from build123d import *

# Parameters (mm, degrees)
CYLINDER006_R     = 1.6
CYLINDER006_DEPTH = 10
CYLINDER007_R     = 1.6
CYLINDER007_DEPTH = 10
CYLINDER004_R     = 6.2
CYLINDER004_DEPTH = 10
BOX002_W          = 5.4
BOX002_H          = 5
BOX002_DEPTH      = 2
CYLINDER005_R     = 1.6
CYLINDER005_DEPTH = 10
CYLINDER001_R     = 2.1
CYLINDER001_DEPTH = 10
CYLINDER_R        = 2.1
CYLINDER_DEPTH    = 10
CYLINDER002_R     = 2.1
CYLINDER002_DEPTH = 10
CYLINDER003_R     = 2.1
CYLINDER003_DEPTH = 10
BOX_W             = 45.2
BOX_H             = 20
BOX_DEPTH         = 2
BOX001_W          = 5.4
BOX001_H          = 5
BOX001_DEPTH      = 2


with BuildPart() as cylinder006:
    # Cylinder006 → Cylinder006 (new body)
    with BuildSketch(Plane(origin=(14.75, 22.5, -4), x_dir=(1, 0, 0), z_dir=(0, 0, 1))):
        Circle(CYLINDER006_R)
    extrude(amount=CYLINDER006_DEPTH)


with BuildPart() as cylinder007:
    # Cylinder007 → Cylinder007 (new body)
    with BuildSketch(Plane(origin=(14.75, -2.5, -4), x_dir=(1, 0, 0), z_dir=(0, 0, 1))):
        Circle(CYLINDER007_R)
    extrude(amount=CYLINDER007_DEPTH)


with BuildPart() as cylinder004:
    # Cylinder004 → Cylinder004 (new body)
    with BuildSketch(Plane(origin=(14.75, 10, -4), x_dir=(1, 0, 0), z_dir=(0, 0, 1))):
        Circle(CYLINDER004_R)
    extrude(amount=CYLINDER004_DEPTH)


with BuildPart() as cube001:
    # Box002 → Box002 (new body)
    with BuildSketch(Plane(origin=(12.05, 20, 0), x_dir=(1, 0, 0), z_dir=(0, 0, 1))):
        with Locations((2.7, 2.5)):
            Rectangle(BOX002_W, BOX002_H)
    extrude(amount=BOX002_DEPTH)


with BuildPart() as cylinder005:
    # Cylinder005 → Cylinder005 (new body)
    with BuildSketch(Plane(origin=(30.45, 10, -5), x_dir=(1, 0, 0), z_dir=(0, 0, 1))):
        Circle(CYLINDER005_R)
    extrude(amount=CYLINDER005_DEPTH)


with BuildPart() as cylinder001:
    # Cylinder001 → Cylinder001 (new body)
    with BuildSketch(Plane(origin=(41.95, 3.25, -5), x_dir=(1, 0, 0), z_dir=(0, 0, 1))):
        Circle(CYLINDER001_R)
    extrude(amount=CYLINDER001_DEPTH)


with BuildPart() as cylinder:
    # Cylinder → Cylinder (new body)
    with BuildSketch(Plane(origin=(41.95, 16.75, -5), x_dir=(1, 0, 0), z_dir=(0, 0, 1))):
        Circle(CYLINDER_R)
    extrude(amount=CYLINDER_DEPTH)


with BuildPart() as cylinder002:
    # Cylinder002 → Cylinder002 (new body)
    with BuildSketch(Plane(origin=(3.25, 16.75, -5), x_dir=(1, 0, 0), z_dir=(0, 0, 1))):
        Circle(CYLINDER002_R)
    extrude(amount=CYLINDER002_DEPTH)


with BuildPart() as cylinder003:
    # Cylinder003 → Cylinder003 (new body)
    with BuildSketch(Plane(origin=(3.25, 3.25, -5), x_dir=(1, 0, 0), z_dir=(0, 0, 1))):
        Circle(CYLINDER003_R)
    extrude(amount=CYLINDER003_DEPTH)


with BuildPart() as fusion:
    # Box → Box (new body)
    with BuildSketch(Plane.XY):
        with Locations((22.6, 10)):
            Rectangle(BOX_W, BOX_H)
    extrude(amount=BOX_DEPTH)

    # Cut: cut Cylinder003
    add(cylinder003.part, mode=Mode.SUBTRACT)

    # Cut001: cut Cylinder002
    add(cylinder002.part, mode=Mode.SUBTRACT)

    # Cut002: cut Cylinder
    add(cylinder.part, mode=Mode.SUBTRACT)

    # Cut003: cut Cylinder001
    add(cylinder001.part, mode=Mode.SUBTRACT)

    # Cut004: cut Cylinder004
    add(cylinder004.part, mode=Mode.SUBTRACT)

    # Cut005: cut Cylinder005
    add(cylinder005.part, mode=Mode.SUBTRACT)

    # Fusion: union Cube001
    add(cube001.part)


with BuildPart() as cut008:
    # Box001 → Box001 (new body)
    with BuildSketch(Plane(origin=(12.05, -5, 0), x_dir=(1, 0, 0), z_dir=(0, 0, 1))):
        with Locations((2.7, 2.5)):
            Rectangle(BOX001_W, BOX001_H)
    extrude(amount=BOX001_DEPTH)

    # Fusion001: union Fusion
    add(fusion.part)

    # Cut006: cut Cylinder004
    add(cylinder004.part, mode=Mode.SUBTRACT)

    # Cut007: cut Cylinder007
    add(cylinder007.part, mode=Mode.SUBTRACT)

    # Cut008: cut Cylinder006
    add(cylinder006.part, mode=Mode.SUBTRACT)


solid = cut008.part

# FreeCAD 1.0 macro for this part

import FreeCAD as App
import Part
import Sketcher
from FreeCAD import Vector


def add_polygon(sketch, points):
    """Adds a closed chain of lines whose ends are joined by coincident constraints."""
    first, n = sketch.GeometryCount, len(points)
    for a, b in zip(points, points[1:] + points[:1]):
        sketch.addGeometry(Part.LineSegment(App.Vector(*a, 0), App.Vector(*b, 0)), False)
    for i in range(n):
        sketch.addConstraint(Sketcher.Constraint("Coincident", first + i, 2, first + (i + 1) % n, 1))

doc = App.newDocument("Part")
params = doc.addObject("Spreadsheet::Sheet", "Params")
for row, (alias, value) in enumerate([
    ("sketch1_diameter", "3.2 mm"),
    ("pad1_length", "10 mm"),
    ("sketch2_diameter", "3.2 mm"),
    ("pad2_length", "10 mm"),
    ("sketch3_diameter", "12.4 mm"),
    ("pad3_length", "10 mm"),
    ("sketch4_height", "5 mm"),
    ("sketch4_width", "5.4 mm"),
    ("pad4_length", "2 mm"),
    ("sketch5_diameter", "3.2 mm"),
    ("pad5_length", "10 mm"),
    ("sketch6_diameter", "4.2 mm"),
    ("pad6_length", "10 mm"),
    ("sketch7_diameter", "4.2 mm"),
    ("pad7_length", "10 mm"),
    ("sketch8_diameter", "4.2 mm"),
    ("pad8_length", "10 mm"),
    ("sketch9_diameter", "4.2 mm"),
    ("pad9_length", "10 mm"),
    ("sketch10_height", "20 mm"),
    ("sketch10_width", "45.2 mm"),
    ("pad10_length", "2 mm"),
    ("sketch11_height", "5 mm"),
    ("sketch11_width", "5.4 mm"),
    ("pad11_length", "2 mm"),
], start=1):
    params.set(f"A{row}", alias)
    params.set(f"B{row}", "=" + value)
    params.setAlias(f"B{row}", alias)

body = doc.addObject("PartDesign::Body", "Body")

# Sketch on XY plane
sketch1 = body.newObject("Sketcher::SketchObject", "Sketch")
sketch1.AttachmentSupport = (doc.getObject("XY_Plane"), [""])
sketch1.MapMode = "FlatFace"
sketch1.AttachmentOffset = App.Placement(Vector(0, 0, -4), App.Rotation())
sketch1.addGeometry(Part.Circle(Vector(14.8, 22.5, 0), Vector(0, 0, 1), 1.6), False)
sketch1.addConstraint(Sketcher.Constraint("Diameter", 0, 3.2))
sketch1.addConstraint(Sketcher.Constraint("DistanceY", -1, 1, 0, 3, 22.5))
sketch1.addConstraint(Sketcher.Constraint("DistanceX", -1, 1, 0, 3, 14.75))
sketch1.setExpression("Constraints[0]", "Params.sketch1_diameter")
pad1 = body.newObject("PartDesign::Pad", "Pad")
pad1.Profile = sketch1
pad1.setExpression("Length", "Params.pad1_length")
body2 = doc.addObject("PartDesign::Body", "Body001")

# Sketch on XY plane
sketch2 = body2.newObject("Sketcher::SketchObject", "Sketch001")
sketch2.AttachmentSupport = (doc.getObject("XY_Plane001"), [""])
sketch2.MapMode = "FlatFace"
sketch2.AttachmentOffset = App.Placement(Vector(0, 0, -4), App.Rotation())
sketch2.addGeometry(Part.Circle(Vector(14.8, -2.5, 0), Vector(0, 0, 1), 1.6), False)
sketch2.addConstraint(Sketcher.Constraint("Diameter", 0, 3.2))
sketch2.addConstraint(Sketcher.Constraint("DistanceY", 0, 3, -1, 1, 2.5))
sketch2.addConstraint(Sketcher.Constraint("DistanceX", -1, 1, 0, 3, 14.75))
sketch2.setExpression("Constraints[0]", "Params.sketch2_diameter")
pad2 = body2.newObject("PartDesign::Pad", "Pad001")
pad2.Profile = sketch2
pad2.setExpression("Length", "Params.pad2_length")
body3 = doc.addObject("PartDesign::Body", "Body002")

# Sketch on XY plane
sketch3 = body3.newObject("Sketcher::SketchObject", "Sketch002")
sketch3.AttachmentSupport = (doc.getObject("XY_Plane002"), [""])
sketch3.MapMode = "FlatFace"
sketch3.AttachmentOffset = App.Placement(Vector(0, 0, -4), App.Rotation())
sketch3.addGeometry(Part.Circle(Vector(15, 10, 0), Vector(0, 0, 1), 6), False)
sketch3.addConstraint(Sketcher.Constraint("Diameter", 0, 12.4))
sketch3.addConstraint(Sketcher.Constraint("DistanceY", -1, 1, 0, 3, 10.0))
sketch3.addConstraint(Sketcher.Constraint("DistanceX", -1, 1, 0, 3, 14.75))
sketch3.setExpression("Constraints[0]", "Params.sketch3_diameter")
pad3 = body3.newObject("PartDesign::Pad", "Pad002")
pad3.Profile = sketch3
pad3.setExpression("Length", "Params.pad3_length")
body4 = doc.addObject("PartDesign::Body", "Body003")

# Sketch on XY plane
sketch4 = body4.newObject("Sketcher::SketchObject", "Sketch003")
sketch4.AttachmentSupport = (doc.getObject("XY_Plane003"), [""])
sketch4.MapMode = "FlatFace"
add_polygon(sketch4, [(12, 25), (12, 20), (17, 20), (17, 25)])  # lines 0-3
sketch4.addConstraint(Sketcher.Constraint("Vertical", 0))
sketch4.addConstraint(Sketcher.Constraint("Horizontal", 1))
sketch4.addConstraint(Sketcher.Constraint("Vertical", 2))
sketch4.addConstraint(Sketcher.Constraint("Horizontal", 3))
sketch4.addConstraint(Sketcher.Constraint("DistanceY", 0, 2, 0, 1, 5.0))
sketch4.addConstraint(Sketcher.Constraint("DistanceX", 1, 1, 1, 2, 5.4))
sketch4.addConstraint(Sketcher.Constraint("DistanceY", -1, 1, 0, 2, 20.0))
sketch4.addConstraint(Sketcher.Constraint("DistanceX", -1, 1, 0, 2, 12.05))
sketch4.setExpression("Constraints[8]", "Params.sketch4_height")
sketch4.setExpression("Constraints[9]", "Params.sketch4_width")
pad4 = body4.newObject("PartDesign::Pad", "Pad003")
pad4.Profile = sketch4
pad4.setExpression("Length", "Params.pad4_length")
body5 = doc.addObject("PartDesign::Body", "Body004")

# Sketch on XY plane
sketch5 = body5.newObject("Sketcher::SketchObject", "Sketch004")
sketch5.AttachmentSupport = (doc.getObject("XY_Plane004"), [""])
sketch5.MapMode = "FlatFace"
sketch5.AttachmentOffset = App.Placement(Vector(0, 0, -5), App.Rotation())
sketch5.addGeometry(Part.Circle(Vector(30.4, 10, 0), Vector(0, 0, 1), 1.6), False)
sketch5.addConstraint(Sketcher.Constraint("Diameter", 0, 3.2))
sketch5.addConstraint(Sketcher.Constraint("DistanceY", -1, 1, 0, 3, 10.0))
sketch5.addConstraint(Sketcher.Constraint("DistanceX", -1, 1, 0, 3, 30.45))
sketch5.setExpression("Constraints[0]", "Params.sketch5_diameter")
pad5 = body5.newObject("PartDesign::Pad", "Pad004")
pad5.Profile = sketch5
pad5.setExpression("Length", "Params.pad5_length")
body6 = doc.addObject("PartDesign::Body", "Body005")

# Sketch on XY plane
sketch6 = body6.newObject("Sketcher::SketchObject", "Sketch005")
sketch6.AttachmentSupport = (doc.getObject("XY_Plane005"), [""])
sketch6.MapMode = "FlatFace"
sketch6.AttachmentOffset = App.Placement(Vector(0, 0, -5), App.Rotation())
sketch6.addGeometry(Part.Circle(Vector(42, 3.2, 0), Vector(0, 0, 1), 2.1), False)
sketch6.addConstraint(Sketcher.Constraint("Diameter", 0, 4.2))
sketch6.addConstraint(Sketcher.Constraint("DistanceX", -1, 1, 0, 3, 41.95))
sketch6.addConstraint(Sketcher.Constraint("DistanceY", -1, 1, 0, 3, 3.25))
sketch6.setExpression("Constraints[0]", "Params.sketch6_diameter")
pad6 = body6.newObject("PartDesign::Pad", "Pad005")
pad6.Profile = sketch6
pad6.setExpression("Length", "Params.pad6_length")
body7 = doc.addObject("PartDesign::Body", "Body006")

# Sketch on XY plane
sketch7 = body7.newObject("Sketcher::SketchObject", "Sketch006")
sketch7.AttachmentSupport = (doc.getObject("XY_Plane006"), [""])
sketch7.MapMode = "FlatFace"
sketch7.AttachmentOffset = App.Placement(Vector(0, 0, -5), App.Rotation())
sketch7.addGeometry(Part.Circle(Vector(42, 16.8, 0), Vector(0, 0, 1), 2.1), False)
sketch7.addConstraint(Sketcher.Constraint("Diameter", 0, 4.2))
sketch7.addConstraint(Sketcher.Constraint("DistanceX", -1, 1, 0, 3, 41.95))
sketch7.addConstraint(Sketcher.Constraint("DistanceY", -1, 1, 0, 3, 16.75))
sketch7.setExpression("Constraints[0]", "Params.sketch7_diameter")
pad7 = body7.newObject("PartDesign::Pad", "Pad006")
pad7.Profile = sketch7
pad7.setExpression("Length", "Params.pad7_length")
body8 = doc.addObject("PartDesign::Body", "Body007")

# Sketch on XY plane
sketch8 = body8.newObject("Sketcher::SketchObject", "Sketch007")
sketch8.AttachmentSupport = (doc.getObject("XY_Plane007"), [""])
sketch8.MapMode = "FlatFace"
sketch8.AttachmentOffset = App.Placement(Vector(0, 0, -5), App.Rotation())
sketch8.addGeometry(Part.Circle(Vector(3.2, 16.8, 0), Vector(0, 0, 1), 2.1), False)
sketch8.addConstraint(Sketcher.Constraint("Diameter", 0, 4.2))
sketch8.addConstraint(Sketcher.Constraint("DistanceX", -1, 1, 0, 3, 3.25))
sketch8.addConstraint(Sketcher.Constraint("DistanceY", -1, 1, 0, 3, 16.75))
sketch8.setExpression("Constraints[0]", "Params.sketch8_diameter")
pad8 = body8.newObject("PartDesign::Pad", "Pad007")
pad8.Profile = sketch8
pad8.setExpression("Length", "Params.pad8_length")
body9 = doc.addObject("PartDesign::Body", "Body008")

# Sketch on XY plane
sketch9 = body9.newObject("Sketcher::SketchObject", "Sketch008")
sketch9.AttachmentSupport = (doc.getObject("XY_Plane008"), [""])
sketch9.MapMode = "FlatFace"
sketch9.AttachmentOffset = App.Placement(Vector(0, 0, -5), App.Rotation())
sketch9.addGeometry(Part.Circle(Vector(3.2, 3.2, 0), Vector(0, 0, 1), 2.1), False)
sketch9.addConstraint(Sketcher.Constraint("Diameter", 0, 4.2))
sketch9.addConstraint(Sketcher.Constraint("DistanceX", -1, 1, 0, 3, 3.25))
sketch9.addConstraint(Sketcher.Constraint("DistanceY", -1, 1, 0, 3, 3.25))
sketch9.setExpression("Constraints[0]", "Params.sketch9_diameter")
pad9 = body9.newObject("PartDesign::Pad", "Pad008")
pad9.Profile = sketch9
pad9.setExpression("Length", "Params.pad9_length")
body10 = doc.addObject("PartDesign::Body", "Body009")

# Sketch on XY plane
sketch10 = body10.newObject("Sketcher::SketchObject", "Sketch009")
sketch10.AttachmentSupport = (doc.getObject("XY_Plane009"), [""])
sketch10.MapMode = "FlatFace"
add_polygon(sketch10, [(0, 20), (0, 0), (45, 0), (45, 20)])  # lines 0-3
sketch10.addConstraint(Sketcher.Constraint("Vertical", 0))
sketch10.addConstraint(Sketcher.Constraint("Horizontal", 1))
sketch10.addConstraint(Sketcher.Constraint("Vertical", 2))
sketch10.addConstraint(Sketcher.Constraint("Horizontal", 3))
sketch10.addConstraint(Sketcher.Constraint("Coincident", 0, 2, -1, 1))
sketch10.addConstraint(Sketcher.Constraint("DistanceY", 0, 2, 0, 1, 20.0))
sketch10.addConstraint(Sketcher.Constraint("DistanceX", 1, 1, 1, 2, 45.2))
sketch10.setExpression("Constraints[9]", "Params.sketch10_height")
sketch10.setExpression("Constraints[10]", "Params.sketch10_width")
pad10 = body10.newObject("PartDesign::Pad", "Pad009")
pad10.Profile = sketch10
pad10.setExpression("Length", "Params.pad10_length")
doc.recompute()

boolean = body10.newObject("PartDesign::Boolean", "Boolean")
boolean.Type = "Cut"
boolean.addObjects([body9])
doc.recompute()

boolean2 = body10.newObject("PartDesign::Boolean", "Boolean001")
boolean2.Type = "Cut"
boolean2.addObjects([body8])
doc.recompute()

boolean3 = body10.newObject("PartDesign::Boolean", "Boolean002")
boolean3.Type = "Cut"
boolean3.addObjects([body7])
doc.recompute()

boolean4 = body10.newObject("PartDesign::Boolean", "Boolean003")
boolean4.Type = "Cut"
boolean4.addObjects([body6])
doc.recompute()

body11 = doc.addObject("PartDesign::Body", "Body010")
body11.BaseFeature = body3
boolean5 = body10.newObject("PartDesign::Boolean", "Boolean004")
boolean5.Type = "Cut"
boolean5.addObjects([body11])
doc.recompute()

boolean6 = body10.newObject("PartDesign::Boolean", "Boolean005")
boolean6.Type = "Cut"
boolean6.addObjects([body5])
doc.recompute()

boolean7 = body10.newObject("PartDesign::Boolean", "Boolean006")
boolean7.Type = "Fuse"
boolean7.addObjects([body4])
body12 = doc.addObject("PartDesign::Body", "Body011")

# Sketch on XY plane
sketch11 = body12.newObject("Sketcher::SketchObject", "Sketch010")
sketch11.AttachmentSupport = (doc.getObject("XY_Plane011"), [""])
sketch11.MapMode = "FlatFace"
add_polygon(sketch11, [(12, 0), (12, -5), (17, -5), (17, 0)])  # lines 0-3
sketch11.addConstraint(Sketcher.Constraint("Vertical", 0))
sketch11.addConstraint(Sketcher.Constraint("Horizontal", 1))
sketch11.addConstraint(Sketcher.Constraint("Vertical", 2))
sketch11.addConstraint(Sketcher.Constraint("Horizontal", 3))
sketch11.addConstraint(Sketcher.Constraint("PointOnObject", 2, 2, -1))
sketch11.addConstraint(Sketcher.Constraint("DistanceY", 0, 2, 0, 1, 5.0))
sketch11.addConstraint(Sketcher.Constraint("DistanceX", 1, 1, 1, 2, 5.4))
sketch11.addConstraint(Sketcher.Constraint("DistanceX", -1, 1, 0, 2, 12.05))
sketch11.setExpression("Constraints[9]", "Params.sketch11_height")
sketch11.setExpression("Constraints[10]", "Params.sketch11_width")
pad11 = body12.newObject("PartDesign::Pad", "Pad010")
pad11.Profile = sketch11
pad11.setExpression("Length", "Params.pad11_length")
doc.recompute()

boolean8 = body12.newObject("PartDesign::Boolean", "Boolean007")
boolean8.Type = "Fuse"
boolean8.addObjects([body10])
doc.recompute()

boolean9 = body12.newObject("PartDesign::Boolean", "Boolean008")
boolean9.Type = "Cut"
boolean9.addObjects([body3])
doc.recompute()

boolean10 = body12.newObject("PartDesign::Boolean", "Boolean009")
boolean10.Type = "Cut"
boolean10.addObjects([body2])
doc.recompute()

boolean11 = body12.newObject("PartDesign::Boolean", "Boolean010")
boolean11.Type = "Cut"
boolean11.addObjects([body])

doc.recompute()
